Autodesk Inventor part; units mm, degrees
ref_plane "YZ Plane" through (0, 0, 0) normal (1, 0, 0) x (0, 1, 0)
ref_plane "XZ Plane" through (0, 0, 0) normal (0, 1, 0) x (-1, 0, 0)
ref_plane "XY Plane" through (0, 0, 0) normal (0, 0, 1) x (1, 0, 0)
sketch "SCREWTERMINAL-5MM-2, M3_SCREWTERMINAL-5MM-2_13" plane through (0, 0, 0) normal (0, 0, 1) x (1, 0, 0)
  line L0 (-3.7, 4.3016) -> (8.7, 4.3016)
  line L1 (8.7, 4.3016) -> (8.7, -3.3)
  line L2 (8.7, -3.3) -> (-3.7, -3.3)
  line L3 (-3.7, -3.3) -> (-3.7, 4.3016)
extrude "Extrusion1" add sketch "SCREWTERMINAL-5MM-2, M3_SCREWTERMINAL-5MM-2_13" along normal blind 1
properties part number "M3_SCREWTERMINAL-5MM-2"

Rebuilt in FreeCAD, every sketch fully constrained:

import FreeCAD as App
import Part
import Sketcher
from FreeCAD import Vector


def add_polygon(sketch, points):
    """Adds a closed chain of lines whose ends are joined by coincident constraints."""
    first, n = sketch.GeometryCount, len(points)
    for a, b in zip(points, points[1:] + points[:1]):
        sketch.addGeometry(Part.LineSegment(App.Vector(*a, 0), App.Vector(*b, 0)), False)
    for i in range(n):
        sketch.addConstraint(Sketcher.Constraint("Coincident", first + i, 2, first + (i + 1) % n, 1))

doc = App.newDocument("Part")
body = doc.addObject("PartDesign::Body", "Body")

# Sketch on XY plane
sketch1 = body.newObject("Sketcher::SketchObject", "Sketch")
sketch1.AttachmentSupport = (doc.getObject("XY_Plane"), [""])
sketch1.MapMode = "FlatFace"
add_polygon(sketch1, [(9, 4), (-4, 4), (-4, -3), (9, -3)])  # lines 0-3
sketch1.addConstraint([
    Sketcher.Constraint("Horizontal", 0),
    Sketcher.Constraint("Vertical", 1),
    Sketcher.Constraint("Horizontal", 2),
    Sketcher.Constraint("Vertical", 3),
    Sketcher.Constraint("DistanceX", 0, 2, 0, 1, 12.4),
    Sketcher.Constraint("DistanceX", 0, 2, -1, 1, 3.7),
    Sketcher.Constraint("DistanceY", 1, 2, -1, 1, 3.3),
    Sketcher.Constraint("DistanceY", 1, 2, 1, 1, 7.6016),
])
pad1 = body.newObject("PartDesign::Pad", "Pad")
pad1.Profile = sketch1
pad1.Length = 1

doc.recompute()
